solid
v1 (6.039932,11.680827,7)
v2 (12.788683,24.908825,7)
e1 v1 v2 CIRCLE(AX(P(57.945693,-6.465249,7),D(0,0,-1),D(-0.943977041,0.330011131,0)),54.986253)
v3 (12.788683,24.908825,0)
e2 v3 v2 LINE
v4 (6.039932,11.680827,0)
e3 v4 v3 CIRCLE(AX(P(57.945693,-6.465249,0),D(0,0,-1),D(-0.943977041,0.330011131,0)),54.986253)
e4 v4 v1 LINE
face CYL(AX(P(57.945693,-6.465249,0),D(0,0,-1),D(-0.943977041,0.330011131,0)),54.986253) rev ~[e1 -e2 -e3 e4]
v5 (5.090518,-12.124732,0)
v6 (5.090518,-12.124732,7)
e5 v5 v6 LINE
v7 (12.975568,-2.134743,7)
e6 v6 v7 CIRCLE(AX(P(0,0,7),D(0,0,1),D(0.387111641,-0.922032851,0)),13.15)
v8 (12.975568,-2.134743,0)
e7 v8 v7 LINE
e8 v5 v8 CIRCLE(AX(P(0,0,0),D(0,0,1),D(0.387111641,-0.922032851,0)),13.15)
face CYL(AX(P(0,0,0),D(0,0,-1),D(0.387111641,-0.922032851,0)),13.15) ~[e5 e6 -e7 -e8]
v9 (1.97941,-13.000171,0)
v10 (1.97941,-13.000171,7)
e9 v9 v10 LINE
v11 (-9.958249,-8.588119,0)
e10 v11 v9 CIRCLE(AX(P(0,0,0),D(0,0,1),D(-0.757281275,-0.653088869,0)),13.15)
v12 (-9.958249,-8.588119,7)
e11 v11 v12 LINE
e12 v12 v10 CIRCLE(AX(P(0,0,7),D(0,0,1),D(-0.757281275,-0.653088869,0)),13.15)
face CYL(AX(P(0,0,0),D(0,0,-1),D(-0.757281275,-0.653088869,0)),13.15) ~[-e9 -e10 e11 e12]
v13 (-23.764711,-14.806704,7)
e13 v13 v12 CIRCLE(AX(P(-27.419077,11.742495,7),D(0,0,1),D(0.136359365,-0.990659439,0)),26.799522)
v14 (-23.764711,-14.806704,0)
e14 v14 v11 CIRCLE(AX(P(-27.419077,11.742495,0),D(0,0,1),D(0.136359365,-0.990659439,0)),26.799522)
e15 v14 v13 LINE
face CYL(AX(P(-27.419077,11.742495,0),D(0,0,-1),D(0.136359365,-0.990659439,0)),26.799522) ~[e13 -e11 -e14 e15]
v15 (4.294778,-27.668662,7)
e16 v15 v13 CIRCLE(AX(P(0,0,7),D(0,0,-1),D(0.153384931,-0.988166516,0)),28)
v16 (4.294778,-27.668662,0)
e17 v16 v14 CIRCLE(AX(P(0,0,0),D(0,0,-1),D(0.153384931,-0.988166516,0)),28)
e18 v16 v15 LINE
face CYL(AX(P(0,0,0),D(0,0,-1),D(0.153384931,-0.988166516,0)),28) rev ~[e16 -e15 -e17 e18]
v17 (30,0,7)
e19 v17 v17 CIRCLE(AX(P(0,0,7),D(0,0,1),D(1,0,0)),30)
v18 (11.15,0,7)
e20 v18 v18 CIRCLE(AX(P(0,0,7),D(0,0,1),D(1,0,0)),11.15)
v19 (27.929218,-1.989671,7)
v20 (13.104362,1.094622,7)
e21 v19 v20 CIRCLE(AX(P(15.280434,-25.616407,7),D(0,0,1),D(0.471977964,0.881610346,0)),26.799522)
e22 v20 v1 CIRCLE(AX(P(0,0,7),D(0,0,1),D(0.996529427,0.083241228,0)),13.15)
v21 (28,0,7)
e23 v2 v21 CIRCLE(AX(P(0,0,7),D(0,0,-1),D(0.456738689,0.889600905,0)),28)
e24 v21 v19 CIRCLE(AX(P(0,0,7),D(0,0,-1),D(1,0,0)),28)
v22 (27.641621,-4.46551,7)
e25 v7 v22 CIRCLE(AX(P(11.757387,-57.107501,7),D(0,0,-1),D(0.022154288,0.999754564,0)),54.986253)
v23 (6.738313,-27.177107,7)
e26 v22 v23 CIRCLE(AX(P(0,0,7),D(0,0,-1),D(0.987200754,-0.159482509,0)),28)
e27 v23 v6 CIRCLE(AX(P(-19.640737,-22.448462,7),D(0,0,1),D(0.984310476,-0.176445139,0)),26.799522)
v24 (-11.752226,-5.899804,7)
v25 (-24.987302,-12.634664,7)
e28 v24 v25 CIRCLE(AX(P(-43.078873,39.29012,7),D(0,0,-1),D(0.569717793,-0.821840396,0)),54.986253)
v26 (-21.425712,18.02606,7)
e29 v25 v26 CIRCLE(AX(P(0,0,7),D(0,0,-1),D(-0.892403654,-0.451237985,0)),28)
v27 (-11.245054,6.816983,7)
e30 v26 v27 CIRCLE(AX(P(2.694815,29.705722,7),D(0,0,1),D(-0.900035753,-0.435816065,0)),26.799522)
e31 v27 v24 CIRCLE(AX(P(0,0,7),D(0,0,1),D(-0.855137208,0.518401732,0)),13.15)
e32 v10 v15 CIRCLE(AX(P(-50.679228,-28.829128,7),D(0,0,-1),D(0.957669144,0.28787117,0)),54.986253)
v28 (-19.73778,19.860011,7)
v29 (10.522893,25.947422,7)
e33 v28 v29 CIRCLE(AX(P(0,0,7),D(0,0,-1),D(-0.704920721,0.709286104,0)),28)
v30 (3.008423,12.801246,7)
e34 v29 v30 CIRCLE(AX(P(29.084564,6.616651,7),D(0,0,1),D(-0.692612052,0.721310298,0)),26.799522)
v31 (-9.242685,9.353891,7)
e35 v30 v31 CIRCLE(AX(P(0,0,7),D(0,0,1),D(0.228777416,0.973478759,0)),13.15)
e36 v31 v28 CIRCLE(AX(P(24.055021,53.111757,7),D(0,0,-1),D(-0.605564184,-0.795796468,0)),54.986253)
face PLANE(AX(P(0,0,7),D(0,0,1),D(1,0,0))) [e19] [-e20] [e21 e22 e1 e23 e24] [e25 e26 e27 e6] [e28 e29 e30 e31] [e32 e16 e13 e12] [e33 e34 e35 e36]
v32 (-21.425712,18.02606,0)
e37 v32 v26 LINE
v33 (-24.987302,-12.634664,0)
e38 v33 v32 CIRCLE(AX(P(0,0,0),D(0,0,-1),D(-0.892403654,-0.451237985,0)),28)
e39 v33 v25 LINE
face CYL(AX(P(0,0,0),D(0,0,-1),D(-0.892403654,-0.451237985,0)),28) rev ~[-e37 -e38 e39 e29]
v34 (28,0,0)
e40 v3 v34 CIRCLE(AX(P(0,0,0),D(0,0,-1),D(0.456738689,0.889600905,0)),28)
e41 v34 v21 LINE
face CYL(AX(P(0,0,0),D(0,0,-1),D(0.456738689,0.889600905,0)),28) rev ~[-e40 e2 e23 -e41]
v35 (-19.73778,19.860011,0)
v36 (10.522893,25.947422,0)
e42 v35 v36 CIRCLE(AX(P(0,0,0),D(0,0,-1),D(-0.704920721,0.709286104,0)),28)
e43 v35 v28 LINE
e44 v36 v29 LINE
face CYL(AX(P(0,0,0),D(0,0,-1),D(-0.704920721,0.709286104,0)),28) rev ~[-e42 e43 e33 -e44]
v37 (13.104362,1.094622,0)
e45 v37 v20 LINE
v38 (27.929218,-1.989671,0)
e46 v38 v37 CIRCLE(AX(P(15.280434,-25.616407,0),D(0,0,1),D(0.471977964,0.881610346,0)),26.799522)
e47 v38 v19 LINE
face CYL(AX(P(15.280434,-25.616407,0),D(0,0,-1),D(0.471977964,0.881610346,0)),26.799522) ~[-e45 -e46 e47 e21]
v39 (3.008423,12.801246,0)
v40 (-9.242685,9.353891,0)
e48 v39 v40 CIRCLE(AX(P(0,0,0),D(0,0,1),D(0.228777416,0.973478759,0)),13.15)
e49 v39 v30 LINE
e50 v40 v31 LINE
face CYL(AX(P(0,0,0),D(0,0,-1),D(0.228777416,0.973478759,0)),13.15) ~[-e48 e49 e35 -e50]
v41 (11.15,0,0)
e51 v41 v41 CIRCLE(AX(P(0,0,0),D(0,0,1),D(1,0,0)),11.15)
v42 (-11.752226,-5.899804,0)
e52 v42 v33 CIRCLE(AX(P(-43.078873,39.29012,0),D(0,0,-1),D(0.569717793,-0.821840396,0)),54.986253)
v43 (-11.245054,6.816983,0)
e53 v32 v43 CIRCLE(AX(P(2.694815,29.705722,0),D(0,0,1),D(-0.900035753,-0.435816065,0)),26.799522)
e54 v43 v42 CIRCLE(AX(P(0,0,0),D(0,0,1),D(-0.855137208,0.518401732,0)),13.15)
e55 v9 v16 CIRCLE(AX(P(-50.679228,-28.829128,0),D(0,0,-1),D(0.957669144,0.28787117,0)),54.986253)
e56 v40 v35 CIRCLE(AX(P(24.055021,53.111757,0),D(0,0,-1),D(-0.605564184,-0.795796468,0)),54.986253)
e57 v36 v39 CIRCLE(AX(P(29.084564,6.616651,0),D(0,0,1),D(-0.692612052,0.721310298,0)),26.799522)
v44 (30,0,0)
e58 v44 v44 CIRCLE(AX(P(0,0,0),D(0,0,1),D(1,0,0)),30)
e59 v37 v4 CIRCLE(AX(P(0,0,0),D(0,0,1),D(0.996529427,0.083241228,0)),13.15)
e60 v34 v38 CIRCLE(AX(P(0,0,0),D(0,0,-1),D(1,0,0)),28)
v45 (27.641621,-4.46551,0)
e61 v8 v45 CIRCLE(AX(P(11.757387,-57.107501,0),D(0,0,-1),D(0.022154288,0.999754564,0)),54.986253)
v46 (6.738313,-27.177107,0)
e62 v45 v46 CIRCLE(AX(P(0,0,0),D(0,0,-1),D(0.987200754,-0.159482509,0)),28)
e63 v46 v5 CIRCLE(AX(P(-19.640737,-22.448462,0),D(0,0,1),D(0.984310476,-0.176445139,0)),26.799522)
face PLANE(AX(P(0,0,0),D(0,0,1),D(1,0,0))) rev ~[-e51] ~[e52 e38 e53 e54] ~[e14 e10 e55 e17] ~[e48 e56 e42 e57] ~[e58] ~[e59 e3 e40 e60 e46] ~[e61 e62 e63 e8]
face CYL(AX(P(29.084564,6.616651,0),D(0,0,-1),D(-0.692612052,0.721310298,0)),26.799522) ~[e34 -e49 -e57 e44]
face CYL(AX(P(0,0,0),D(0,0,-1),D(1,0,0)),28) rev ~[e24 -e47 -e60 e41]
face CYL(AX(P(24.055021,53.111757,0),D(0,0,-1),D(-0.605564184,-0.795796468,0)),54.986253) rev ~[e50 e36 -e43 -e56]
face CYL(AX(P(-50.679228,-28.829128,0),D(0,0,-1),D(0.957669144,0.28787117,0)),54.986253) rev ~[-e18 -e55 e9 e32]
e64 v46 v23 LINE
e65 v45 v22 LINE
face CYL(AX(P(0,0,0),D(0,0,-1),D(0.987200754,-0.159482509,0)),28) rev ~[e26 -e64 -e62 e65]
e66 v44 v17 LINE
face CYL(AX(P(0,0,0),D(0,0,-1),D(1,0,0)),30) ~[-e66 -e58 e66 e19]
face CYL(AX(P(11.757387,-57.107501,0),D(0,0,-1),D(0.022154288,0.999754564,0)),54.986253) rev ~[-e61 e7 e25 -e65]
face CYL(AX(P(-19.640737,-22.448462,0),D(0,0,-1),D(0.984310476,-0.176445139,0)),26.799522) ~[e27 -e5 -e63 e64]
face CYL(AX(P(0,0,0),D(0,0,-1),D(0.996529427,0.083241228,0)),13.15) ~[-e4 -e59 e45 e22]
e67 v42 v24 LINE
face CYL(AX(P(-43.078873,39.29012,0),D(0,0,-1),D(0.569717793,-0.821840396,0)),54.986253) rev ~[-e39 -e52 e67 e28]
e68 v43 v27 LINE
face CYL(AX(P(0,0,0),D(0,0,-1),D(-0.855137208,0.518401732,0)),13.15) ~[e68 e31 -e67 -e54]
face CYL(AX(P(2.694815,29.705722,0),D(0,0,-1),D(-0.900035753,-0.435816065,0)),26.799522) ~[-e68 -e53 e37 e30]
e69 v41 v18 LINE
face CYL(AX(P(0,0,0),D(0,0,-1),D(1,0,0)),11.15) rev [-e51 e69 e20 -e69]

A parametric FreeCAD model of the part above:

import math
import FreeCAD as App
import Part
import Sketcher

doc = App.newDocument("Part")
body = doc.addObject("PartDesign::Body", "Body")

# Sketch on XY plane
sketch1 = body.newObject("Sketcher::SketchObject", "Sketch")
sketch1.AttachmentSupport = (doc.getObject("XY_Plane"), [""])
sketch1.MapMode = "FlatFace"
sketch1.addGeometry([
    Part.Circle(App.Vector(0, 0, 0), App.Vector(0, 0, 1), 30),  # 0
    Part.ArcOfCircle(Part.Circle(App.Vector(0, 0, 0), App.Vector(0, 0, 1), 28), math.radians(0), math.radians(63)),  # 1
    Part.ArcOfCircle(Part.Circle(App.Vector(0, 0, 0), App.Vector(0, 0, 1), 28), math.radians(-4.07), math.radians(0)),  # 2
    Part.ArcOfCircle(Part.Circle(App.Vector(15.3, -25.6, 0), App.Vector(0, 0, 1), 26.8), math.radians(62), math.radians(95)),  # 3
    Part.ArcOfCircle(Part.Circle(App.Vector(0, 0, 0), App.Vector(0, 0, 1), 13.2), math.radians(5), math.radians(63)),  # 4
    Part.ArcOfCircle(Part.Circle(App.Vector(57.9, -6.5, 0), App.Vector(0, 0, 1), 55), math.radians(145.21), math.radians(160.73)),  # 5
    Part.ArcOfCircle(Part.Circle(App.Vector(0, 0, 0), App.Vector(0, 0, 1), 28), math.radians(-76), math.radians(-9)),  # 6
    Part.ArcOfCircle(Part.Circle(App.Vector(-19.6, -22.4, 0), App.Vector(0, 0, 1), 26.8), math.radians(-10), math.radians(23)),  # 7
    Part.ArcOfCircle(Part.Circle(App.Vector(0, 0, 0), App.Vector(0, 0, 1), 13.2), math.radians(-67), math.radians(-9)),  # 8
    Part.ArcOfCircle(Part.Circle(App.Vector(11.8, -57.1, 0), App.Vector(0, 0, 1), 55), math.radians(73.21), math.radians(88.73)),  # 9
    Part.ArcOfCircle(Part.Circle(App.Vector(0, 0, 0), App.Vector(0, 0, 1), 28), math.radians(-148), math.radians(-81)),  # 10
    Part.ArcOfCircle(Part.Circle(App.Vector(-27.4, 11.7, 0), App.Vector(0, 0, 1), 26.8), math.radians(-82), math.radians(-49)),  # 11
    Part.ArcOfCircle(Part.Circle(App.Vector(0, 0, 0), App.Vector(0, 0, 1), 13.2), math.radians(-139), math.radians(-81)),  # 12
    Part.ArcOfCircle(Part.Circle(App.Vector(-50.7, -28.8, 0), App.Vector(0, 0, 1), 55), math.radians(1.21), math.radians(16.73)),  # 13
    Part.ArcOfCircle(Part.Circle(App.Vector(0, 0, 0), App.Vector(0, 0, 1), 28), math.radians(140), math.radians(207)),  # 14
    Part.ArcOfCircle(Part.Circle(App.Vector(2.7, 29.7, 0), App.Vector(0, 0, 1), 26.8), math.radians(-154), math.radians(-121)),  # 15
    Part.ArcOfCircle(Part.Circle(App.Vector(0, 0, 0), App.Vector(0, 0, 1), 13.2), math.radians(149), math.radians(207)),  # 16
    Part.ArcOfCircle(Part.Circle(App.Vector(-43.1, 39.3, 0), App.Vector(0, 0, 1), 55), math.radians(-70.79), math.radians(-55.27)),  # 17
    Part.ArcOfCircle(Part.Circle(App.Vector(0, 0, 0), App.Vector(0, 0, 1), 13.2), math.radians(77), math.radians(135)),  # 18
    Part.ArcOfCircle(Part.Circle(App.Vector(24.1, 53.1, 0), App.Vector(0, 0, 1), 55), math.radians(-142.79), math.radians(-127.27)),  # 19
    Part.ArcOfCircle(Part.Circle(App.Vector(0, 0, 0), App.Vector(0, 0, 1), 28), math.radians(68), math.radians(135)),  # 20
    Part.ArcOfCircle(Part.Circle(App.Vector(29.1, 6.6, 0), App.Vector(0, 0, 1), 26.8), math.radians(134), math.radians(167)),  # 21
    Part.Circle(App.Vector(0, 0, 0), App.Vector(0, 0, 1), 11.2),  # 22
], False)
sketch1.addConstraint([
    Sketcher.Constraint("Tangent", 1, 1, 2, 2),
    Sketcher.Constraint("Coincident", 2, 1, 3, 1),
    Sketcher.Constraint("Coincident", 3, 2, 4, 1),
    Sketcher.Constraint("Coincident", 4, 2, 5, 2),
    Sketcher.Constraint("Coincident", 5, 1, 1, 2),
    Sketcher.Constraint("Coincident", 6, 1, 7, 1),
    Sketcher.Constraint("Coincident", 7, 2, 8, 1),
    Sketcher.Constraint("Coincident", 8, 2, 9, 2),
    Sketcher.Constraint("Coincident", 9, 1, 6, 2),
    Sketcher.Constraint("Coincident", 10, 1, 11, 1),
    Sketcher.Constraint("Coincident", 11, 2, 12, 1),
    Sketcher.Constraint("Coincident", 12, 2, 13, 2),
    Sketcher.Constraint("Coincident", 13, 1, 10, 2),
    Sketcher.Constraint("Coincident", 14, 1, 15, 1),
    Sketcher.Constraint("Coincident", 15, 2, 16, 1),
    Sketcher.Constraint("Coincident", 16, 2, 17, 2),
    Sketcher.Constraint("Coincident", 17, 1, 14, 2),
    Sketcher.Constraint("Coincident", 18, 2, 19, 2),
    Sketcher.Constraint("Coincident", 19, 1, 20, 2),
    Sketcher.Constraint("Coincident", 20, 1, 21, 1),
    Sketcher.Constraint("Coincident", 21, 2, 18, 1),
    Sketcher.Constraint("Coincident", 0, 3, -1, 1),
    Sketcher.Constraint("Coincident", 1, 3, -1, 1),
    Sketcher.Constraint("Coincident", 4, 3, -1, 1),
    Sketcher.Constraint("Coincident", 6, 3, -1, 1),
    Sketcher.Constraint("Coincident", 8, 3, -1, 1),
    Sketcher.Constraint("Coincident", 10, 3, -1, 1),
    Sketcher.Constraint("Coincident", 12, 3, -1, 1),
    Sketcher.Constraint("Coincident", 14, 3, -1, 1),
    Sketcher.Constraint("Coincident", 16, 3, -1, 1),
    Sketcher.Constraint("Coincident", 18, 3, -1, 1),
    Sketcher.Constraint("Coincident", 20, 3, -1, 1),
    Sketcher.Constraint("Coincident", 22, 3, -1, 1),
    Sketcher.Constraint("Equal", 1, 2),
    Sketcher.Constraint("Equal", 2, 6),
    Sketcher.Constraint("Equal", 3, 7),
    Sketcher.Constraint("Equal", 4, 8),
    Sketcher.Constraint("Equal", 5, 9),
    Sketcher.Constraint("Equal", 6, 10),
    Sketcher.Constraint("Equal", 7, 11),
    Sketcher.Constraint("Equal", 8, 12),
    Sketcher.Constraint("Equal", 9, 13),
    Sketcher.Constraint("Equal", 10, 14),
    Sketcher.Constraint("Equal", 11, 15),
    Sketcher.Constraint("Equal", 12, 16),
    Sketcher.Constraint("Equal", 13, 17),
    Sketcher.Constraint("Equal", 16, 18),
    Sketcher.Constraint("Equal", 17, 19),
    Sketcher.Constraint("Equal", 14, 20),
    Sketcher.Constraint("Equal", 15, 21),
    Sketcher.Constraint("PointOnObject", 1, 1, -1),
    Sketcher.Constraint("Diameter", 0, 60.0),
    Sketcher.Constraint("Radius", 1, 28.0),
    Sketcher.Constraint("Diameter", 22, 22.3),
    Sketcher.Constraint("Radius", 4, 13.15),
    Sketcher.Constraint("Radius", 3, 26.799522),
    Sketcher.Constraint("Radius", 5, 54.986253),
    Sketcher.Constraint("DistanceY", 4, 2, 5, 1, 13.227998),
    Sketcher.Constraint("DistanceY", 9, 3, -1, 1, 57.107501),
    Sketcher.Constraint("DistanceY", 6, 1, 3, 3, 1.5607),
    Sketcher.Constraint("DistanceY", 10, 1, 11, 3, 26.549199),
    Sketcher.Constraint("DistanceY", 20, 1, 15, 3, 3.7583),
    Sketcher.Constraint("DistanceY", 3, 2, 20, 1, 24.8528),
    Sketcher.Constraint("DistanceY", 5, 3, -1, 1, 6.465249),
    Sketcher.Constraint("DistanceY", 7, 3, -1, 1, 22.448462),
    Sketcher.Constraint("DistanceX", 13, 3, -1, 1, 50.679228),
    Sketcher.Constraint("DistanceY", -1, 1, 17, 3, 39.29012),
    Sketcher.Constraint("DistanceX", -1, 1, 19, 3, 24.055021),
    Sketcher.Constraint("DistanceY", -1, 1, 21, 3, 6.616651),
    Sketcher.Constraint("DistanceY", 2, 1, -1, 1, 1.989671),
    Sketcher.Constraint("DistanceX", -1, 1, 7, 2, 5.090518),
    Sketcher.Constraint("DistanceY", 9, 1, -1, 1, 4.46551),
    Sketcher.Constraint("DistanceX", 10, 1, -1, 1, 23.764711),
    Sketcher.Constraint("DistanceX", -1, 1, 12, 2, 1.97941),
    Sketcher.Constraint("DistanceY", -1, 1, 14, 1, 18.02606),
    Sketcher.Constraint("DistanceY", -1, 1, 18, 2, 9.353891),
    Sketcher.Constraint("DistanceX", 16, 2, 15, 2, 0.507171),
])
pad1 = body.newObject("PartDesign::Pad", "Pad")
pad1.Profile = sketch1
pad1.Length = 7

doc.recompute()
